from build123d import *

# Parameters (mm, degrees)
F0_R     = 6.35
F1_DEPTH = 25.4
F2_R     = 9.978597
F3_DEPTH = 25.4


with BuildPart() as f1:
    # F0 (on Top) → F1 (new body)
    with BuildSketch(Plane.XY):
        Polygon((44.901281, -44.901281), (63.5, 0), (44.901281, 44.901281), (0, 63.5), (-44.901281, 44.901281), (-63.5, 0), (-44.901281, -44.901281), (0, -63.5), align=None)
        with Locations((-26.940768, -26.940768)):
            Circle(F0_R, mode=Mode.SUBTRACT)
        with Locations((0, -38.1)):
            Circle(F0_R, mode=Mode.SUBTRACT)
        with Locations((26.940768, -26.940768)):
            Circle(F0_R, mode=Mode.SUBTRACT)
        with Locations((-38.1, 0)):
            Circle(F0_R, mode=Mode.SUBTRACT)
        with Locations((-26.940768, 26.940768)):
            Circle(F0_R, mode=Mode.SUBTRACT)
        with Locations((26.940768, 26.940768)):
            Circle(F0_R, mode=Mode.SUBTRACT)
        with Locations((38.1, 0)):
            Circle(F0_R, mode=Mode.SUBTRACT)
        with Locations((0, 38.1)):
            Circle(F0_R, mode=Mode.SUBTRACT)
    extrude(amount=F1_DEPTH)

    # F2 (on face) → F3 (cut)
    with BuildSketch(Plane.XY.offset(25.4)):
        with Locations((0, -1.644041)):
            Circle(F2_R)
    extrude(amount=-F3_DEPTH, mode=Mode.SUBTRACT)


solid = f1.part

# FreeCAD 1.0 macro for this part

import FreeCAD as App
import Part
import Sketcher
from FreeCAD import Vector
Q = App.Units.Quantity

doc = App.newDocument("Part")
body = doc.addObject("PartDesign::Body", "Body")

sketch1 = doc.addObject("Sketcher::SketchObject", "Sketch")
body.addObject(sketch1)
sketch1.AttachmentSupport = (doc.XY_Plane, [""])
sketch1.MapMode = "FlatFace"
sketch1.addGeometry(Part.LineSegment(Vector(44.901281, -44.901281, 0), Vector(63.5, 0, 0)), False)
sketch1.addGeometry(Part.LineSegment(Vector(63.5, 0, 0), Vector(44.901281, 44.901281, 0)), False)
sketch1.addGeometry(Part.LineSegment(Vector(44.901281, 44.901281, 0), Vector(0, 63.5, 0)), False)
sketch1.addGeometry(Part.LineSegment(Vector(0, 63.5, 0), Vector(-44.901281, 44.901281, 0)), False)
sketch1.addGeometry(Part.LineSegment(Vector(-44.901281, 44.901281, 0), Vector(-63.5, 0, 0)), False)
sketch1.addGeometry(Part.LineSegment(Vector(-63.5, 0, 0), Vector(-44.901281, -44.901281, 0)), False)
sketch1.addGeometry(Part.LineSegment(Vector(-44.901281, -44.901281, 0), Vector(0, -63.5, 0)), False)
sketch1.addGeometry(Part.LineSegment(Vector(0, -63.5, 0), Vector(44.901281, -44.901281, 0)), False)
sketch1.addGeometry(Part.Circle(Vector(-26.940768, -26.940768, 0), Vector(0, 0, 1), 6.35), False)
sketch1.addGeometry(Part.Circle(Vector(0, -38.1, 0), Vector(0, 0, 1), 6.35), False)
sketch1.addGeometry(Part.Circle(Vector(26.940768, -26.940768, 0), Vector(0, 0, 1), 6.35), False)
sketch1.addGeometry(Part.Circle(Vector(-38.1, 0, 0), Vector(0, 0, 1), 6.35), False)
sketch1.addGeometry(Part.Circle(Vector(-26.940768, 26.940768, 0), Vector(0, 0, 1), 6.35), False)
sketch1.addGeometry(Part.Circle(Vector(38.1, 0, 0), Vector(0, 0, 1), 6.35), False)
sketch1.addGeometry(Part.Circle(Vector(0, 38.1, 0), Vector(0, 0, 1), 6.35), False)
sketch1.addGeometry(Part.Circle(Vector(26.940768, 26.940768, 0), Vector(0, 0, 1), 6.35), False)
sketch1.addConstraint(Sketcher.Constraint("Coincident", 0, 2, 1, 1))
sketch1.addConstraint(Sketcher.Constraint("Coincident", 1, 2, 2, 1))
sketch1.addConstraint(Sketcher.Constraint("Coincident", 2, 2, 3, 1))
sketch1.addConstraint(Sketcher.Constraint("Coincident", 3, 2, 4, 1))
sketch1.addConstraint(Sketcher.Constraint("Coincident", 4, 2, 5, 1))
sketch1.addConstraint(Sketcher.Constraint("Coincident", 5, 2, 6, 1))
sketch1.addConstraint(Sketcher.Constraint("Coincident", 6, 2, 7, 1))
sketch1.addConstraint(Sketcher.Constraint("Coincident", 7, 2, 0, 1))
sketch1.addConstraint(Sketcher.Constraint("Equal", 8, 9))
sketch1.addConstraint(Sketcher.Constraint("Equal", 9, 10))
sketch1.addConstraint(Sketcher.Constraint("Equal", 10, 11))
sketch1.addConstraint(Sketcher.Constraint("Equal", 11, 12))
sketch1.addConstraint(Sketcher.Constraint("Equal", 12, 13))
sketch1.addConstraint(Sketcher.Constraint("Equal", 13, 14))
sketch1.addConstraint(Sketcher.Constraint("Equal", 14, 15))
sketch1.addConstraint(Sketcher.Constraint("Symmetric", 10, 3, 12, 3, -1, 1))
sketch1.addConstraint(Sketcher.Constraint("Symmetric", 11, 3, 13, 3, -1, 1))
sketch1.addConstraint(Sketcher.Constraint("Symmetric", 9, 3, 14, 3, -1, 1))
sketch1.addConstraint(Sketcher.Constraint("Symmetric", 8, 3, 15, 3, -1, 1))
sketch1.addConstraint(Sketcher.Constraint("Symmetric", 0, 2, 4, 2, -1, 1))
sketch1.addConstraint(Sketcher.Constraint("Symmetric", 1, 2, 5, 2, -1, 1))
sketch1.addConstraint(Sketcher.Constraint("Symmetric", 2, 2, 6, 2, -1, 1))
sketch1.addConstraint(Sketcher.Constraint("Symmetric", 3, 2, 7, 2, -1, 1))
sketch1.addConstraint(Sketcher.Constraint("Symmetric", 8, 3, 10, 3, -2))
sketch1.addConstraint(Sketcher.Constraint("Symmetric", 1, 2, 3, 2, -2))
sketch1.addConstraint(Sketcher.Constraint("PointOnObject", 9, 3, -2))
sketch1.addConstraint(Sketcher.Constraint("PointOnObject", 11, 3, -1))
sketch1.addConstraint(Sketcher.Constraint("PointOnObject", 0, 2, -1))
sketch1.addConstraint(Sketcher.Constraint("PointOnObject", 2, 2, -2))
sketch1.addConstraint(Sketcher.Constraint("Perpendicular", 0, 2))
sketch1.addConstraint(Sketcher.Constraint("Equal", 1, 2))
sketch1.addConstraint(Sketcher.Constraint("Diameter", 8, Q("0.5 in")))
sketch1.addConstraint(Sketcher.Constraint("DistanceX", 11, 3, 13, 3, Q("3 in")))
sketch1.addConstraint(Sketcher.Constraint("DistanceX", 13, 3, 0, 2, Q("1 in")))
sketch1.addConstraint(Sketcher.Constraint("DistanceY", 14, 3, 2, 2, Q("1 in")))
sketch1.addConstraint(Sketcher.Constraint("Angle", 0, Q("67.500001 deg")))
sketch1.addConstraint(Sketcher.Constraint("DistanceX", 11, 3, 10, 3, 65.040768))
sketch1.addConstraint(Sketcher.Constraint("DistanceY", 9, 3, 12, 3, 65.040768))
pad1 = doc.addObject("PartDesign::Pad", "Pad")
body.addObject(pad1)
pad1.Profile = sketch1
pad1.Length = Q("1 in")

sketch2 = doc.addObject("Sketcher::SketchObject", "Sketch001")
body.addObject(sketch2)
sketch2.AttachmentSupport = (doc.XY_Plane, [""])
sketch2.MapMode = "FlatFace"
sketch2.AttachmentOffset = App.Placement(Vector(0, 0, 1 * 25.4), App.Rotation())
sketch2.addGeometry(Part.Circle(Vector(0, -1.644041, 0), Vector(0, 0, 1), 9.978597), False)
sketch2.addConstraint(Sketcher.Constraint("PointOnObject", 0, 3, -2))
sketch2.addConstraint(Sketcher.Constraint("Diameter", 0, 19.957194))
sketch2.addConstraint(Sketcher.Constraint("DistanceY", 0, 3, -1, 1, 1.644041))
pocket1 = doc.addObject("PartDesign::Pocket", "Pocket")
body.addObject(pocket1)
pocket1.Profile = sketch2
pocket1.Length = Q("1 in")

doc.recompute()
